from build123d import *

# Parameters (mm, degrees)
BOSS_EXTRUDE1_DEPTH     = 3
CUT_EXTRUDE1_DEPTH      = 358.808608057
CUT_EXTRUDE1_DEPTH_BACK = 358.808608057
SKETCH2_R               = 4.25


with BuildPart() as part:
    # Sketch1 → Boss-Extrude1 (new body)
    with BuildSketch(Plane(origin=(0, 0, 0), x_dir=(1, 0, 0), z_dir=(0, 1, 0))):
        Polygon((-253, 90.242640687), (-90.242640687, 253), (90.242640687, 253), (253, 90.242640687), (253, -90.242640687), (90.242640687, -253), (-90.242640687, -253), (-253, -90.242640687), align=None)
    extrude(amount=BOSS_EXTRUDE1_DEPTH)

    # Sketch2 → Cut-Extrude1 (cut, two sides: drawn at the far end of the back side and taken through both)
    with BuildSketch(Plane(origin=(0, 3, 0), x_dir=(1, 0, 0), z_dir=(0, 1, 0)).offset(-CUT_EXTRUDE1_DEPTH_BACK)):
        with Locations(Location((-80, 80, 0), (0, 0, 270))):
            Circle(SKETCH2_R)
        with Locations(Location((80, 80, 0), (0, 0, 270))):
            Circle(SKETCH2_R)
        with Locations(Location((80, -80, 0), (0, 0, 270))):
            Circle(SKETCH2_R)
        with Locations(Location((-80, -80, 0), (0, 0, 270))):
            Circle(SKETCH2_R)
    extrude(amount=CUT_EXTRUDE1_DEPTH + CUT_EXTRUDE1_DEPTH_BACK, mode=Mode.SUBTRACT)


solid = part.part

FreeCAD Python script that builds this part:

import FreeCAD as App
import Part
import Sketcher
from FreeCAD import Vector

doc = App.newDocument("Part")
body = doc.addObject("PartDesign::Body", "Body")

sketch1 = body.newObject("Sketcher::SketchObject", "Sketch")
sketch1.AttachmentSupport = (doc.getObject("XZ_Plane"), [""])
sketch1.MapMode = "FlatFace"
sketch1.addGeometry([
    Part.LineSegment(Vector(-90.242641, -253, 0), Vector(-253, -90.242641, 0)),
    Part.LineSegment(Vector(-253, -90.242641, 0), Vector(-253, 90.242641, 0)),
    Part.LineSegment(Vector(-253, 90.242641, 0), Vector(-90.242641, 253, 0)),
    Part.LineSegment(Vector(-90.242641, 253, 0), Vector(90.242641, 253, 0)),
    Part.LineSegment(Vector(90.242641, 253, 0), Vector(253, 90.242641, 0)),
    Part.LineSegment(Vector(253, 90.242641, 0), Vector(253, -90.242641, 0)),
    Part.LineSegment(Vector(253, -90.242641, 0), Vector(90.242641, -253, 0)),
    Part.LineSegment(Vector(90.242641, -253, 0), Vector(-90.242641, -253, 0)),
], False)
sketch1.addConstraint([
    Sketcher.Constraint("Coincident", 0, 2, 1, 1),
    Sketcher.Constraint("Coincident", 1, 2, 2, 1),
    Sketcher.Constraint("Coincident", 2, 2, 3, 1),
    Sketcher.Constraint("Coincident", 3, 2, 4, 1),
    Sketcher.Constraint("Coincident", 4, 2, 5, 1),
    Sketcher.Constraint("Coincident", 5, 2, 6, 1),
    Sketcher.Constraint("Coincident", 6, 2, 7, 1),
    Sketcher.Constraint("Coincident", 7, 2, 0, 1),
    Sketcher.Constraint("Vertical", 1),
    Sketcher.Constraint("Horizontal", 3),
    Sketcher.Constraint("Vertical", 5),
    Sketcher.Constraint("Horizontal", 7),
    Sketcher.Constraint("Symmetric", 0, 2, 4, 2, -1, 1),
    Sketcher.Constraint("Symmetric", 2, 2, 6, 2, -1, 1),
    Sketcher.Constraint("Perpendicular", 0, 2),
    Sketcher.Constraint("Perpendicular", 2, 4),
    Sketcher.Constraint("Perpendicular", 4, 6),
    Sketcher.Constraint("Horizontal", 1, 2, 4, 2),
    Sketcher.Constraint("Vertical", 3, 2, 6, 2),
    Sketcher.Constraint("Equal", 7, 1),
    Sketcher.Constraint("DistanceX", 0, 2, -1, 1, 253.0),
    Sketcher.Constraint("DistanceX", 3, 1, 3, 2, 180.485281),
])
pad1 = body.newObject("PartDesign::Pad", "Pad")
pad1.Profile = sketch1
pad1.Length = 3
pad1.Reversed = True

sketch2 = body.newObject("Sketcher::SketchObject", "Sketch001")
sketch2.AttachmentSupport = (doc.getObject("XZ_Plane"), [""])
sketch2.MapMode = "FlatFace"
sketch2.AttachmentOffset = App.Placement(Vector(0, 0, -3), App.Rotation())
sketch2.addGeometry([
    Part.Circle(Vector(-80, -80, 0), Vector(0, 0, 1), 4.25),
    Part.Circle(Vector(80, -80, 0), Vector(0, 0, 1), 4.25),
    Part.Circle(Vector(80, 80, 0), Vector(0, 0, 1), 4.25),
    Part.Circle(Vector(-80, 80, 0), Vector(0, 0, 1), 4.25),
], False)
sketch2.addConstraint([
    Sketcher.Constraint("Equal", 0, 1),
    Sketcher.Constraint("Equal", 1, 2),
    Sketcher.Constraint("Equal", 2, 3),
    Sketcher.Constraint("Symmetric", 0, 3, 2, 3, -1, 1),
    Sketcher.Constraint("Symmetric", 1, 3, 3, 3, -1, 1),
    Sketcher.Constraint("Symmetric", 0, 3, 1, 3, -2),
    Sketcher.Constraint("Diameter", 0, 8.5),
    Sketcher.Constraint("DistanceX", 0, 3, -1, 1, 80.0),
    Sketcher.Constraint("DistanceY", 0, 3, -1, 1, 80.0),
])
pocket1 = body.newObject("PartDesign::Pocket", "Pocket")
pocket1.Profile = sketch2
pocket1.Type = "ThroughAll"
pocket1.Midplane = True

doc.recompute()
